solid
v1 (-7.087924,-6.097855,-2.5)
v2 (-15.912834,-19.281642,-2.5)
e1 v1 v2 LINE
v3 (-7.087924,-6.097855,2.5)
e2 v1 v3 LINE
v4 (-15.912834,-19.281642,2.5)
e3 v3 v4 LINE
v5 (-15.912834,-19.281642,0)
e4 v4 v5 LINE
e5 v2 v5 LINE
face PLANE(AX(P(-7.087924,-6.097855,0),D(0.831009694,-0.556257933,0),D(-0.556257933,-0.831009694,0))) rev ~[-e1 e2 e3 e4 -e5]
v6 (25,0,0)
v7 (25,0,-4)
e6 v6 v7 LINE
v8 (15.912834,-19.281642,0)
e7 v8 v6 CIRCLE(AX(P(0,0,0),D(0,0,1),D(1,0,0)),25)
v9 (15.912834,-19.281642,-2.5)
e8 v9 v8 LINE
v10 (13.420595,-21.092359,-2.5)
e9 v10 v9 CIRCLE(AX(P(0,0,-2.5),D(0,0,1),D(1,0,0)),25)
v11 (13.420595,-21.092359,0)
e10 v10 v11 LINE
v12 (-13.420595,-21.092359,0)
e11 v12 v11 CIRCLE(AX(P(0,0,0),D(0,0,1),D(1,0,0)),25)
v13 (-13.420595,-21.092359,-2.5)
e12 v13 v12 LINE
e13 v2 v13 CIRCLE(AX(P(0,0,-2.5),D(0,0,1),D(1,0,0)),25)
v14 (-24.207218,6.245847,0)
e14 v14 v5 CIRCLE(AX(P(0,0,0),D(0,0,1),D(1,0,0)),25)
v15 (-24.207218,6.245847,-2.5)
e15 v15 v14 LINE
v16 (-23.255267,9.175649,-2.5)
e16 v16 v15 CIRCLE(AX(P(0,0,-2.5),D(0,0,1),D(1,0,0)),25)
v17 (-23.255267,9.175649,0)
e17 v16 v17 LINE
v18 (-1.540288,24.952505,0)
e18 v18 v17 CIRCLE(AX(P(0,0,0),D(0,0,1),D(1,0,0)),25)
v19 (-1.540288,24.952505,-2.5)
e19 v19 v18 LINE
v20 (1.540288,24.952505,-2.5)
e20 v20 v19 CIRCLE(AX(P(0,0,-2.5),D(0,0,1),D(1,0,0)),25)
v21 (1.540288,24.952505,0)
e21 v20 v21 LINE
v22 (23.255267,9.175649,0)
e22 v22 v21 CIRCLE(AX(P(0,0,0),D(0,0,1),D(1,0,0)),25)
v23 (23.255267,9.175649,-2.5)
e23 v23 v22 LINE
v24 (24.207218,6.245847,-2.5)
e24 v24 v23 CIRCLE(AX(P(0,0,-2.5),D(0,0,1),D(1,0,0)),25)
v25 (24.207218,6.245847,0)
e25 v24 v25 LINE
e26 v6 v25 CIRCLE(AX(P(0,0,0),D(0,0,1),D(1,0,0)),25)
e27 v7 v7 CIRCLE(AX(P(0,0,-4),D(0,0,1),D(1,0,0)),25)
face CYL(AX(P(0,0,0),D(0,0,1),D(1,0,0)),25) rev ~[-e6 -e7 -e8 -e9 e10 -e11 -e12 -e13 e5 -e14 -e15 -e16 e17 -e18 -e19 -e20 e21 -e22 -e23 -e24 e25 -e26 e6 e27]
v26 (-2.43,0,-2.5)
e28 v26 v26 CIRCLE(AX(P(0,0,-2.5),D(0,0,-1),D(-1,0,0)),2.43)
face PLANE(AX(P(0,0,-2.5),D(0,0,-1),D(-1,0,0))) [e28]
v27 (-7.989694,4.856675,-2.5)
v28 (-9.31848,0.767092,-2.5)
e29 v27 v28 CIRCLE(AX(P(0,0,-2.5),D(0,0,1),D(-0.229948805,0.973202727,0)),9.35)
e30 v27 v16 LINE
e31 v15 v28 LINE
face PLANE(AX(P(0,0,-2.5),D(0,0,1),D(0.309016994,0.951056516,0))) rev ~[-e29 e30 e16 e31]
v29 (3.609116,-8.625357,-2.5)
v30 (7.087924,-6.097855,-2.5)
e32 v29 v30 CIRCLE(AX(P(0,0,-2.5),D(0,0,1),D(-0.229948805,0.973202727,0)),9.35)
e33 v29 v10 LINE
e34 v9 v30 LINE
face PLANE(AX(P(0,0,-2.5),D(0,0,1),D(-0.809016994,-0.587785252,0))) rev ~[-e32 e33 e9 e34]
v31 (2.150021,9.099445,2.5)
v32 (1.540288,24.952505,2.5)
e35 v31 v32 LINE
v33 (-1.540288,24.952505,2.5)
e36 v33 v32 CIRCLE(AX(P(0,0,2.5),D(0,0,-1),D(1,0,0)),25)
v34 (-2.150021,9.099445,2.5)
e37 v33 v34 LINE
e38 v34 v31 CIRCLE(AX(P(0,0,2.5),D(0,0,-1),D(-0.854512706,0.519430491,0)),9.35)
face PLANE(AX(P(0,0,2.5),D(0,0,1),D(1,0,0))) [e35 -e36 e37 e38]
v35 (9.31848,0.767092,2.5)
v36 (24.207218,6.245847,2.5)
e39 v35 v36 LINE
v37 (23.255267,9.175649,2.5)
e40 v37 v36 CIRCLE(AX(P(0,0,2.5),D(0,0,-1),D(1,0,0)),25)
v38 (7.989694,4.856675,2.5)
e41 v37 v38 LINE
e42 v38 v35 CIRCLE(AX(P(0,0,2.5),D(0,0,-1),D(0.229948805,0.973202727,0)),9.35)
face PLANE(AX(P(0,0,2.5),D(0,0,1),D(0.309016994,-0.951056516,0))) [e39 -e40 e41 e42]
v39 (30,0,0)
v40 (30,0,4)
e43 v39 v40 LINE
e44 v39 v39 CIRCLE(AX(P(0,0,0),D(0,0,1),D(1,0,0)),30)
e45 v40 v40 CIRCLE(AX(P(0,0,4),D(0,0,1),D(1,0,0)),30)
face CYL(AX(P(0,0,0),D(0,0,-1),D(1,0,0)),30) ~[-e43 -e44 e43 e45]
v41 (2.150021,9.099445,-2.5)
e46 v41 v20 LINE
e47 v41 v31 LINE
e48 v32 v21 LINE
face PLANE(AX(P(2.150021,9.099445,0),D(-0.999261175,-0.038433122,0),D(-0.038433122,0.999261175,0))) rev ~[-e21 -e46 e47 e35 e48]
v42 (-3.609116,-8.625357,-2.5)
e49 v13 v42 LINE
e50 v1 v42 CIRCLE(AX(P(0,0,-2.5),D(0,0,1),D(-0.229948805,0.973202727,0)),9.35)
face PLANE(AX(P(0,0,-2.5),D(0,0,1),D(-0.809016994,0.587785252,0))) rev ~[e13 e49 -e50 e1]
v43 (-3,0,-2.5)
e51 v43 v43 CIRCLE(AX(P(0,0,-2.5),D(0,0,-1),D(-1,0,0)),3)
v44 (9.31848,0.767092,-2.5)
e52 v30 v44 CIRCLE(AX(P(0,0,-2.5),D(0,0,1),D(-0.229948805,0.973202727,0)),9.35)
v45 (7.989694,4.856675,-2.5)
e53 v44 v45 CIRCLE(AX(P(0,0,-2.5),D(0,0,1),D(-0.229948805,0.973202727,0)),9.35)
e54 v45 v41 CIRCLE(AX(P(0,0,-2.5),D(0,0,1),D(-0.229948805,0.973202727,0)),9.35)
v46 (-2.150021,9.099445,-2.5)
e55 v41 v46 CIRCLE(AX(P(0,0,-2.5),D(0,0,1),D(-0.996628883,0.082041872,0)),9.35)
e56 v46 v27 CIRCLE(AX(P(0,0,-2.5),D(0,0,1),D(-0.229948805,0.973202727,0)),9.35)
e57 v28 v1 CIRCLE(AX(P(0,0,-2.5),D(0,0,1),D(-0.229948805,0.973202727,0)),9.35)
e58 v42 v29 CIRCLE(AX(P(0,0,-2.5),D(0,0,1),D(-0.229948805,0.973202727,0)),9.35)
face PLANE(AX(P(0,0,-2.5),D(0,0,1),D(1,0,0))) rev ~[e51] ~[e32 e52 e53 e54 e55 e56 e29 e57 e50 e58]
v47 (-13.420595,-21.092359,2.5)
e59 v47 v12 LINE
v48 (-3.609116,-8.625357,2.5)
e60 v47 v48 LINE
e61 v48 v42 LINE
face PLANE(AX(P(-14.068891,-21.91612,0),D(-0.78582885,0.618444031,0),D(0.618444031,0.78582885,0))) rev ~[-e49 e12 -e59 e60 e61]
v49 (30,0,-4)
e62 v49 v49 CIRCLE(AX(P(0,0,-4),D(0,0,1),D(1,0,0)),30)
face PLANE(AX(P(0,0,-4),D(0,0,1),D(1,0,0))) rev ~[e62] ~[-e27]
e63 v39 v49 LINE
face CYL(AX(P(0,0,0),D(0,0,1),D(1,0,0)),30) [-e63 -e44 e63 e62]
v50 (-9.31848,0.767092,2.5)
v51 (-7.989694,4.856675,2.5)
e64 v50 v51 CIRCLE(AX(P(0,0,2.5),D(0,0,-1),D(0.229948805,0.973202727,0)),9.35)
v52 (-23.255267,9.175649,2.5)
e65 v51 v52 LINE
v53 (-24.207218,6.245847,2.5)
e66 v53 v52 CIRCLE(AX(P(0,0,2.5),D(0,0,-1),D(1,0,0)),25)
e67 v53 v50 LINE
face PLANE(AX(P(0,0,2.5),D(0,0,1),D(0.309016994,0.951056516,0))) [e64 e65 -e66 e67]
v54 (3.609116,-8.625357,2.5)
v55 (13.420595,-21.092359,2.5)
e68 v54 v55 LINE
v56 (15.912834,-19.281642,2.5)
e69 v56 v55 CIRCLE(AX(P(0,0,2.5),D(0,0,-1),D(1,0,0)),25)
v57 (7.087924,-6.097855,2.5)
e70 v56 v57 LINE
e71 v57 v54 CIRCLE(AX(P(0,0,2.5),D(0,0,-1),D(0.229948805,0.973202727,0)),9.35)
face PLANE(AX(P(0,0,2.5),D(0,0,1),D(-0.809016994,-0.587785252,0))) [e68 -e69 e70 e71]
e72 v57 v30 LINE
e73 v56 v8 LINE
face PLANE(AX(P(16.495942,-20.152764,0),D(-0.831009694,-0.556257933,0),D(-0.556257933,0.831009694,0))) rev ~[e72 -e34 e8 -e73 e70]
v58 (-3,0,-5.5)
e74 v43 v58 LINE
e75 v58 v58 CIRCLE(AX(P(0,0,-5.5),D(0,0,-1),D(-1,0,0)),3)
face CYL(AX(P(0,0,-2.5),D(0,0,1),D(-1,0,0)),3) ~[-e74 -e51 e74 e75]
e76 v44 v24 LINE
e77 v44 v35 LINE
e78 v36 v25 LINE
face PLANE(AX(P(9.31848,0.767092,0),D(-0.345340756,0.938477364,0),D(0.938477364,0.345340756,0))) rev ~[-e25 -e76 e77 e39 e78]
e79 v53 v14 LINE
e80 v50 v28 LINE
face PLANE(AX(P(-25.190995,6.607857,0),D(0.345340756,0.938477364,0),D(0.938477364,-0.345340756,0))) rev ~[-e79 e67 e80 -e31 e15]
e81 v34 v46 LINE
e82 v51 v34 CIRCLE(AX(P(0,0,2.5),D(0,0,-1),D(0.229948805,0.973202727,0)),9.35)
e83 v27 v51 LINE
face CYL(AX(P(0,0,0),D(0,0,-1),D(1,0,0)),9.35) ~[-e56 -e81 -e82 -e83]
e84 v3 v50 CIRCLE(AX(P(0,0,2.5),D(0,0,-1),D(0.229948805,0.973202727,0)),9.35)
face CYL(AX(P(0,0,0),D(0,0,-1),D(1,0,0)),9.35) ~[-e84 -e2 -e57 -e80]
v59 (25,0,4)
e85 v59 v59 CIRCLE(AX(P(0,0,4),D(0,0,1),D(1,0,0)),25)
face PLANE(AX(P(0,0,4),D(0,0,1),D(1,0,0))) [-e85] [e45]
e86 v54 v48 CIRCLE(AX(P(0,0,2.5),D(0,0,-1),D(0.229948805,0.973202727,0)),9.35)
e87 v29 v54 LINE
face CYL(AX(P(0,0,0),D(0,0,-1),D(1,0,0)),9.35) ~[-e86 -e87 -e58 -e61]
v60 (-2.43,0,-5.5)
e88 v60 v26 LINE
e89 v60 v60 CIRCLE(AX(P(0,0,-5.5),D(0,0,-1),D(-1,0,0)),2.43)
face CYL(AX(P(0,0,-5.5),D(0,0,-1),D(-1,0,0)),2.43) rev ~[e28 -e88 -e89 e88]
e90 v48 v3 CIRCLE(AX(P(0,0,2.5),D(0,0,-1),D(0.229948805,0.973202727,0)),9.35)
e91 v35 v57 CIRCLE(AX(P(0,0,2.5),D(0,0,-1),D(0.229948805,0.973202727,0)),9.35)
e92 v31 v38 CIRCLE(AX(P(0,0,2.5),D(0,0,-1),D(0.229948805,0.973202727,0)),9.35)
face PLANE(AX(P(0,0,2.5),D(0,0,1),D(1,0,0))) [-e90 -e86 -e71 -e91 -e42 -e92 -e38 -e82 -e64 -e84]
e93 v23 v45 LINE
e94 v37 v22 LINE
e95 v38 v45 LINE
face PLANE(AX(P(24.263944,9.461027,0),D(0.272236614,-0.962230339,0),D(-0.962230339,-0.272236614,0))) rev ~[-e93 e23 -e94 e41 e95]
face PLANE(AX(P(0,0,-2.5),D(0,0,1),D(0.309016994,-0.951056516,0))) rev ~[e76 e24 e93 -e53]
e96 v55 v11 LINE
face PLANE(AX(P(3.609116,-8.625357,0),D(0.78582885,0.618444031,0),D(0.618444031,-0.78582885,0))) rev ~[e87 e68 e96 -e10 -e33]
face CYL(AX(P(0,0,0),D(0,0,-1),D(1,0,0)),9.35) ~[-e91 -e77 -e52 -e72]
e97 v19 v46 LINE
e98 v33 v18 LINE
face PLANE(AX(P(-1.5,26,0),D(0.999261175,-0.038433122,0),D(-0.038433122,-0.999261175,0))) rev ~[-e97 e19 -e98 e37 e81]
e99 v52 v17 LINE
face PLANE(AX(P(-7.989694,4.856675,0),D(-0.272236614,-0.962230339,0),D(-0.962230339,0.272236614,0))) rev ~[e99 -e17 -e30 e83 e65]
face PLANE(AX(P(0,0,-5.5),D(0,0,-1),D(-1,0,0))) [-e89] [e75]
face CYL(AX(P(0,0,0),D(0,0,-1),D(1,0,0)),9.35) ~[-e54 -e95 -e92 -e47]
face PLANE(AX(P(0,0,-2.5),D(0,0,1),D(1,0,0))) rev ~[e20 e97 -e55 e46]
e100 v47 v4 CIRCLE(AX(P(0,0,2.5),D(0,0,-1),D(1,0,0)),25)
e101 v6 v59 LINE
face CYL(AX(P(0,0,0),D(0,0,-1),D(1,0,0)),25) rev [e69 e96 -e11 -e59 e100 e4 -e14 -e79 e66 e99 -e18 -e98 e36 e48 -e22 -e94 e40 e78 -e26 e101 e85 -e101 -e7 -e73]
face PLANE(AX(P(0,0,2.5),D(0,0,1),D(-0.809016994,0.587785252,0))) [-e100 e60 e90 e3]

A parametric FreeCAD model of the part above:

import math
import FreeCAD as App
import Part
import Sketcher
Q = App.Units.Quantity

doc = App.newDocument("Part")
body = doc.addObject("PartDesign::Body", "Body")

# Sketch on XY plane
sketch1 = doc.addObject("Sketcher::SketchObject", "Sketch")
body.addObject(sketch1)
sketch1.AttachmentSupport = (doc.XY_Plane, [""])
sketch1.MapMode = "FlatFace"
sketch1.addGeometry([
    Part.Circle(App.Vector(0, 0, 0), App.Vector(0, 0, 1), 30),
    Part.Circle(App.Vector(0, 0, 0), App.Vector(0, 0, 1), 25),
], False)
sketch1.addConstraint([
    Sketcher.Constraint("Coincident", 0, 3, -1, 1),
    Sketcher.Constraint("Coincident", 1, 3, -1, 1),
    Sketcher.Constraint("Diameter", 0, Q("60 mm")),
    Sketcher.Constraint("Diameter", 1, Q("50 mm")),
])
pad1 = doc.addObject("PartDesign::Pad", "Pad")
body.addObject(pad1)
pad1.Profile = sketch1
pad1.Length = 8
pad1.Midplane = True

# Sketch on XY plane
sketch2 = doc.addObject("Sketcher::SketchObject", "Sketch001")
body.addObject(sketch2)
sketch2.AttachmentSupport = (doc.XY_Plane, [""])
sketch2.MapMode = "FlatFace"
sketch2.addGeometry([
    Part.ArcOfCircle(Part.Circle(App.Vector(0, 0, 0), App.Vector(0, 0, 1), 9.3), math.radians(103), math.radians(437)),
    Part.LineSegment(App.Vector(2.2, 9.1, 0), App.Vector(1.5, 26, 0)),
    Part.LineSegment(App.Vector(1.5, 26, 0), App.Vector(-1.5, 26, 0)),
    Part.LineSegment(App.Vector(-1.5, 26, 0), App.Vector(-2.2, 9.1, 0)),
], False)
sketch2.addConstraint([
    Sketcher.Constraint("Coincident", 0, 2, 1, 1),
    Sketcher.Constraint("Coincident", 1, 2, 2, 1),
    Sketcher.Constraint("Coincident", 2, 2, 3, 1),
    Sketcher.Constraint("Coincident", 3, 2, 0, 1),
    Sketcher.Constraint("Horizontal", 2),
    Sketcher.Constraint("Coincident", 0, 3, -1, 1),
    Sketcher.Constraint("Horizontal", 0, 2, 3, 2),
    Sketcher.Constraint("Equal", 1, 3),
    Sketcher.Constraint("DistanceX", 2, 2, 2, 1, Q("3 mm")),
    Sketcher.Constraint("Radius", 0, Q("9.35 mm")),
    Sketcher.Constraint("DistanceY", -1, 1, 1, 2, Q("26 mm")),
    Sketcher.Constraint("DistanceX", 3, 2, 0, 2, Q("4.3 mm")),
])
pad2 = doc.addObject("PartDesign::Pad", "Pad001")
body.addObject(pad2)
pad2.Profile = sketch2
pad2.Length = 5
pad2.Midplane = True
doc.recompute()

polarpattern = doc.addObject("PartDesign::PolarPattern", "PolarPattern")
body.addObject(polarpattern)
polarpattern.Originals = [pad2]
polarpattern.Axis = (doc.Z_Axis, [""])
polarpattern.Angle = 360
polarpattern.Occurrences = 5
body.Tip = polarpattern

# Sketch on XY plane
sketch3 = doc.addObject("Sketcher::SketchObject", "Sketch002")
body.addObject(sketch3)
sketch3.AttachmentSupport = (doc.XY_Plane, [""])
sketch3.MapMode = "FlatFace"
sketch3.AttachmentOffset = App.Placement(App.Vector(0, 0, -2.5), App.Rotation())
sketch3.addGeometry(Part.Circle(App.Vector(0, 0, 0), App.Vector(0, 0, 1), 3), False)
sketch3.addConstraint([
    Sketcher.Constraint("Coincident", 0, 3, -1, 1),
    Sketcher.Constraint("Diameter", 0, Q("6 mm")),
])
pad3 = doc.addObject("PartDesign::Pad", "Pad002")
body.addObject(pad3)
pad3.Profile = sketch3
pad3.Length = 3
pad3.Reversed = True

# Sketch on XY plane
sketch4 = doc.addObject("Sketcher::SketchObject", "Sketch003")
body.addObject(sketch4)
sketch4.AttachmentSupport = (doc.XY_Plane, [""])
sketch4.MapMode = "FlatFace"
sketch4.AttachmentOffset = App.Placement(App.Vector(0, 0, -5.5), App.Rotation())
sketch4.addGeometry(Part.Circle(App.Vector(0, 0, 0), App.Vector(0, 0, 1), 2.4), False)
sketch4.addConstraint([
    Sketcher.Constraint("Coincident", 0, 3, -1, 1),
    Sketcher.Constraint("Diameter", 0, Q("4.86 mm")),
])
pocket1 = doc.addObject("PartDesign::Pocket", "Pocket")
body.addObject(pocket1)
pocket1.Profile = sketch4
pocket1.Length = 3
pocket1.Reversed = True

doc.recompute()
